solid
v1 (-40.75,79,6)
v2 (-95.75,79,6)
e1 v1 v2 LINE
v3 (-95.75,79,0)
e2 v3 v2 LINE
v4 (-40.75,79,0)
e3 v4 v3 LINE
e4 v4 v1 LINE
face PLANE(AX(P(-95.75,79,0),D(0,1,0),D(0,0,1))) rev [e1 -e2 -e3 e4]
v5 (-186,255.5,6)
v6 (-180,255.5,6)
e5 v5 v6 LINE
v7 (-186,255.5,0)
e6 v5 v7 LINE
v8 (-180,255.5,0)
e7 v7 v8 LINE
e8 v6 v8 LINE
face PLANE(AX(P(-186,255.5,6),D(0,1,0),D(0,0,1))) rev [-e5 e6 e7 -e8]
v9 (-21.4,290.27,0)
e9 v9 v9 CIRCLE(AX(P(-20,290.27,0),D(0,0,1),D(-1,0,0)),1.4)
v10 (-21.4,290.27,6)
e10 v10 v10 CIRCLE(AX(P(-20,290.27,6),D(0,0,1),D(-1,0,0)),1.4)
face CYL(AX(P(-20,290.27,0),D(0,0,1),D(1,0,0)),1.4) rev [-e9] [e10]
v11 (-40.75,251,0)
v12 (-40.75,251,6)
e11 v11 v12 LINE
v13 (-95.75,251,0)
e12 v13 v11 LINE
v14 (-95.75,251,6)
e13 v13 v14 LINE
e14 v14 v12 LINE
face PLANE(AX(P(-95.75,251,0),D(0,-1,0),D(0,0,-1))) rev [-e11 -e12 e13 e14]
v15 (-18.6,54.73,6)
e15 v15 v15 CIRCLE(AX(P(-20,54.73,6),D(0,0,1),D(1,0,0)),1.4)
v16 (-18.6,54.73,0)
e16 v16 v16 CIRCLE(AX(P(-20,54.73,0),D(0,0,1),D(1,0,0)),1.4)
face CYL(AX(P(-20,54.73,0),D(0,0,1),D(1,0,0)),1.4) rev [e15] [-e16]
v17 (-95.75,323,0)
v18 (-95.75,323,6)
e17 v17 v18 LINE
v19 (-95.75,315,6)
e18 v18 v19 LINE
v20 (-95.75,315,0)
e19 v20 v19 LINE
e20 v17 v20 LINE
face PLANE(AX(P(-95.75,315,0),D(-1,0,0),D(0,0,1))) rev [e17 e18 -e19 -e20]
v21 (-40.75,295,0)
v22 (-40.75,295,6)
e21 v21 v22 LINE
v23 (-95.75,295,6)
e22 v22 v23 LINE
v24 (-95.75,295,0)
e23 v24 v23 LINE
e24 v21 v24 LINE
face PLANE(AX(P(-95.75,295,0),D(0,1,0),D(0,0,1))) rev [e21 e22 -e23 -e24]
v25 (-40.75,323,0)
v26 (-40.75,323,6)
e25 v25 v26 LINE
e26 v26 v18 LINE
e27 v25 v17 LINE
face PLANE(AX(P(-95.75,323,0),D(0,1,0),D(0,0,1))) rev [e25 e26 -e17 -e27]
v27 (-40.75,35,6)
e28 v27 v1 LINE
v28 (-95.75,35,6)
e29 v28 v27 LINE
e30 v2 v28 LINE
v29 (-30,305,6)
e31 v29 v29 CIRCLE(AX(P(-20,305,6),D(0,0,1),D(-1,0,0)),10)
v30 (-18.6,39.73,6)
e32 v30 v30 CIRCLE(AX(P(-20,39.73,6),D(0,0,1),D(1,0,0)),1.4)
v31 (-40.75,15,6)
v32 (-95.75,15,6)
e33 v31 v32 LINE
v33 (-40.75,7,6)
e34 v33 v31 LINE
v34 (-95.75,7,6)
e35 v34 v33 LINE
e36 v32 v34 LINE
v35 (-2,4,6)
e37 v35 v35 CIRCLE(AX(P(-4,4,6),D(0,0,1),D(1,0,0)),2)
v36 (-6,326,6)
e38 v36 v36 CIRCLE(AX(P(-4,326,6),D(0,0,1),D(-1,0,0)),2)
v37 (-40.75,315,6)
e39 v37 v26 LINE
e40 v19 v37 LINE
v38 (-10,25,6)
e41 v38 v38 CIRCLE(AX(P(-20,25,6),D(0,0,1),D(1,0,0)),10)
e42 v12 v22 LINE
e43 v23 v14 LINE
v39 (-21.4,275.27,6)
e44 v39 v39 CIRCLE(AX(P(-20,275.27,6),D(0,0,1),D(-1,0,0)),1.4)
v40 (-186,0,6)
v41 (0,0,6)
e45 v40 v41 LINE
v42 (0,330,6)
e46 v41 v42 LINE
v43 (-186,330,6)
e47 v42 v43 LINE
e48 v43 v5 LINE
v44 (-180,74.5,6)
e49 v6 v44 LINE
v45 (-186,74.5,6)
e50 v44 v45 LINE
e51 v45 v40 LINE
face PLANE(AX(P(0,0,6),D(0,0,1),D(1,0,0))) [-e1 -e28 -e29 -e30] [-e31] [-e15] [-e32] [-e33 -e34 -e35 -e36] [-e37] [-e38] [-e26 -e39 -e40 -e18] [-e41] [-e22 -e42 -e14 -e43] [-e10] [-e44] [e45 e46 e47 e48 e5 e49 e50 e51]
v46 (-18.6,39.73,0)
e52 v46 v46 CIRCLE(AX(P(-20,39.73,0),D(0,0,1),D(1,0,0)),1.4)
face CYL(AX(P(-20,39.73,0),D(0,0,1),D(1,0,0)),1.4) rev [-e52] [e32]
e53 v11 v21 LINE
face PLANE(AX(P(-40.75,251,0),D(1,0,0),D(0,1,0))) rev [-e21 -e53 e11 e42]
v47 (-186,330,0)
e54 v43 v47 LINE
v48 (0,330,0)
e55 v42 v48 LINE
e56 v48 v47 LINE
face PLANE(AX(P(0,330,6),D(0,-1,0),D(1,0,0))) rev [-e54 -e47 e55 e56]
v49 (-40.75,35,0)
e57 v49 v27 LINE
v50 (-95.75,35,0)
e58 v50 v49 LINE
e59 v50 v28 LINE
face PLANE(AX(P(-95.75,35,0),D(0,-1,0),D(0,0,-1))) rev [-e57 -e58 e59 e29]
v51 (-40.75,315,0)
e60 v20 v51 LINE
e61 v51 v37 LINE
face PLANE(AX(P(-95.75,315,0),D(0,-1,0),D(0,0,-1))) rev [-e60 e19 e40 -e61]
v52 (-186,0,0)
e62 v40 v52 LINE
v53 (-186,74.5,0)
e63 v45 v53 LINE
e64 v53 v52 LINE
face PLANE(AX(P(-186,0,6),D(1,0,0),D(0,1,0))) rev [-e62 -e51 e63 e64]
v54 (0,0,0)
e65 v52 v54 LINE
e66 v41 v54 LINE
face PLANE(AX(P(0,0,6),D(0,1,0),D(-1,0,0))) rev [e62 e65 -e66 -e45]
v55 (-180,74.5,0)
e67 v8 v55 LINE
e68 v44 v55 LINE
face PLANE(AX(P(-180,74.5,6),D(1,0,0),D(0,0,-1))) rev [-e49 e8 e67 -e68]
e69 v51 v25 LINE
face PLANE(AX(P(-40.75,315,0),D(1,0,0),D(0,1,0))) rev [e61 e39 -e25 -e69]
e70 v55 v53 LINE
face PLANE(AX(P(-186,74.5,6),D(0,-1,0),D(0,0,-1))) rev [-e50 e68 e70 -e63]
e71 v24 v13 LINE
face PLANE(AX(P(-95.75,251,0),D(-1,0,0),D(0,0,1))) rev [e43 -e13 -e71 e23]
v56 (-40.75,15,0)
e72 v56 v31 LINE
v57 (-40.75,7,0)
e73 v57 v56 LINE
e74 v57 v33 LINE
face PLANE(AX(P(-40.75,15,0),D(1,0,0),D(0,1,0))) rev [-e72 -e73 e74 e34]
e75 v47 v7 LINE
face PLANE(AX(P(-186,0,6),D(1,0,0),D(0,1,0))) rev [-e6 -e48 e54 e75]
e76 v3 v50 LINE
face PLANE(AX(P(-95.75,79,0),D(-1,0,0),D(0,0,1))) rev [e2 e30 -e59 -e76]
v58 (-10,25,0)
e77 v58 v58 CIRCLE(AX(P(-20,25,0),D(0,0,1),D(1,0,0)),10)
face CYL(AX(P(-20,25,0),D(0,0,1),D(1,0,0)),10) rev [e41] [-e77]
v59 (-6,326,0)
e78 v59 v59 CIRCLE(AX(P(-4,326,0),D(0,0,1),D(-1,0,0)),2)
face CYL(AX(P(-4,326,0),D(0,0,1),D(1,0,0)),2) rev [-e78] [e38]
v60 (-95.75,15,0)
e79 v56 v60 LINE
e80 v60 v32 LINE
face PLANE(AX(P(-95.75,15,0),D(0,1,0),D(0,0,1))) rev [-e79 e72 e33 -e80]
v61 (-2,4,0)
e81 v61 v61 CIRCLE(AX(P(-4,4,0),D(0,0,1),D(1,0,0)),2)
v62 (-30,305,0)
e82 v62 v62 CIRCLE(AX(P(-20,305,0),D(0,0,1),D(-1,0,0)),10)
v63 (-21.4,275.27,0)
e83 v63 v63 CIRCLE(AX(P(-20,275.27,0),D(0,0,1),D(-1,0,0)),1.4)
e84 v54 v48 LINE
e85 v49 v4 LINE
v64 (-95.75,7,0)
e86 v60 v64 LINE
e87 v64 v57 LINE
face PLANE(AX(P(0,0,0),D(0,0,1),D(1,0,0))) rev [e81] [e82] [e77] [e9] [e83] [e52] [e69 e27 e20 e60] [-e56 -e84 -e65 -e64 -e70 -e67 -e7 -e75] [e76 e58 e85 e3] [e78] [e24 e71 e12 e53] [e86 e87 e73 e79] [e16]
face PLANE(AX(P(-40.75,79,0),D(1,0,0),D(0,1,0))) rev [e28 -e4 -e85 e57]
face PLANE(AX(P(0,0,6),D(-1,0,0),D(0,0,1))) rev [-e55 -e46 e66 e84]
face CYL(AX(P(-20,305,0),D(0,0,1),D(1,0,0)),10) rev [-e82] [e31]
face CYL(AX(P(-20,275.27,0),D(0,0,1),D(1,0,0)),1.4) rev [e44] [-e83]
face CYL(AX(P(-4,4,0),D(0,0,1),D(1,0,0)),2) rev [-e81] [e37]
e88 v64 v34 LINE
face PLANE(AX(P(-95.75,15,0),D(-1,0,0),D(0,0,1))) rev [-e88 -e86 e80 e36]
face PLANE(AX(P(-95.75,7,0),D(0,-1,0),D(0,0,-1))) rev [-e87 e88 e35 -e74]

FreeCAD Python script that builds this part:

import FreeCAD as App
import Part
import Sketcher

V = App.Vector

doc = App.newDocument("Part")
body = doc.addObject("PartDesign::Body", "Body")

# Sketch on XY plane
sketch1 = doc.addObject("Sketcher::SketchObject", "Sketch")
body.addObject(sketch1)
sketch1.AttachmentSupport = (doc.XY_Plane, [""])
sketch1.MapMode = "FlatFace"
sketch1.addGeometry(Part.LineSegment(V(-186, 330, 0), V(-186, 0, 0)), False)
sketch1.addGeometry(Part.LineSegment(V(-186, 0, 0), V(0, 0, 0)), False)
sketch1.addGeometry(Part.LineSegment(V(0, 0, 0), V(0, 330, 0)), False)
sketch1.addGeometry(Part.LineSegment(V(0, 330, 0), V(-186, 330, 0)), False)
sketch1.addConstraint(Sketcher.Constraint("Coincident", 0, 2, 1, 1))
sketch1.addConstraint(Sketcher.Constraint("Coincident", 1, 2, 2, 1))
sketch1.addConstraint(Sketcher.Constraint("Coincident", 2, 2, 3, 1))
sketch1.addConstraint(Sketcher.Constraint("Coincident", 3, 2, 0, 1))
sketch1.addConstraint(Sketcher.Constraint("Vertical", 0))
sketch1.addConstraint(Sketcher.Constraint("Horizontal", 1))
sketch1.addConstraint(Sketcher.Constraint("Vertical", 2))
sketch1.addConstraint(Sketcher.Constraint("Horizontal", 3))
sketch1.addConstraint(Sketcher.Constraint("Coincident", 1, 2, -1, 1))
sketch1.addConstraint(Sketcher.Constraint("DistanceX", 1, 1, 1, 2, 186.0))
sketch1.addConstraint(Sketcher.Constraint("DistanceY", 0, 2, 0, 1, 330.0))
pad1 = doc.addObject("PartDesign::Pad", "Pad")
body.addObject(pad1)
pad1.Profile = sketch1
pad1.Length = 6

# Sketch on XY plane
sketch2 = doc.addObject("Sketcher::SketchObject", "Sketch001")
body.addObject(sketch2)
sketch2.AttachmentSupport = (doc.XY_Plane, [""])
sketch2.MapMode = "FlatFace"
sketch2.AttachmentOffset = App.Placement(V(0, 0, 6), App.Rotation())
sketch2.addGeometry(Part.Circle(V(-4, 4, 0), V(0, 0, 1), 2), False)
sketch2.addGeometry(Part.Circle(V(-20, 25, 0), V(0, 0, 1), 10), False)
sketch2.addGeometry(Part.Circle(V(-20, 39.73, 0), V(0, 0, 1), 1.4), False)
sketch2.addGeometry(Part.Circle(V(-20, 54.73, 0), V(0, 0, 1), 1.4), False)
sketch2.addGeometry(Part.Circle(V(-20, 275.27, 0), V(0, 0, 1), 1.4), False)
sketch2.addGeometry(Part.Circle(V(-20, 290.27, 0), V(0, 0, 1), 1.4), False)
sketch2.addGeometry(Part.Circle(V(-4, 326, 0), V(0, 0, 1), 2), False)
sketch2.addGeometry(Part.Circle(V(-20, 305, 0), V(0, 0, 1), 10), False)
sketch2.addGeometry(Part.LineSegment(V(-95.75, 15, 0), V(-95.75, 7, 0)), False)
sketch2.addGeometry(Part.LineSegment(V(-95.75, 7, 0), V(-40.75, 7, 0)), False)
sketch2.addGeometry(Part.LineSegment(V(-40.75, 7, 0), V(-40.75, 15, 0)), False)
sketch2.addGeometry(Part.LineSegment(V(-40.75, 15, 0), V(-95.75, 15, 0)), False)
sketch2.addGeometry(Part.LineSegment(V(-95.75, 79, 0), V(-95.75, 35, 0)), False)
sketch2.addGeometry(Part.LineSegment(V(-95.75, 35, 0), V(-40.75, 35, 0)), False)
sketch2.addGeometry(Part.LineSegment(V(-40.75, 35, 0), V(-40.75, 79, 0)), False)
sketch2.addGeometry(Part.LineSegment(V(-40.75, 79, 0), V(-95.75, 79, 0)), False)
sketch2.addGeometry(Part.LineSegment(V(-95.75, 295, 0), V(-95.75, 251, 0)), False)
sketch2.addGeometry(Part.LineSegment(V(-95.75, 251, 0), V(-40.75, 251, 0)), False)
sketch2.addGeometry(Part.LineSegment(V(-40.75, 251, 0), V(-40.75, 295, 0)), False)
sketch2.addGeometry(Part.LineSegment(V(-40.75, 295, 0), V(-95.75, 295, 0)), False)
sketch2.addGeometry(Part.LineSegment(V(-95.75, 323, 0), V(-95.75, 315, 0)), False)
sketch2.addGeometry(Part.LineSegment(V(-95.75, 315, 0), V(-40.75, 315, 0)), False)
sketch2.addGeometry(Part.LineSegment(V(-40.75, 315, 0), V(-40.75, 323, 0)), False)
sketch2.addGeometry(Part.LineSegment(V(-40.75, 323, 0), V(-95.75, 323, 0)), False)
sketch2.addConstraint(Sketcher.Constraint("Coincident", 8, 2, 9, 1))
sketch2.addConstraint(Sketcher.Constraint("Coincident", 9, 2, 10, 1))
sketch2.addConstraint(Sketcher.Constraint("Coincident", 10, 2, 11, 1))
sketch2.addConstraint(Sketcher.Constraint("Coincident", 11, 2, 8, 1))
sketch2.addConstraint(Sketcher.Constraint("Coincident", 12, 2, 13, 1))
sketch2.addConstraint(Sketcher.Constraint("Coincident", 13, 2, 14, 1))
sketch2.addConstraint(Sketcher.Constraint("Coincident", 14, 2, 15, 1))
sketch2.addConstraint(Sketcher.Constraint("Coincident", 15, 2, 12, 1))
sketch2.addConstraint(Sketcher.Constraint("Coincident", 16, 2, 17, 1))
sketch2.addConstraint(Sketcher.Constraint("Coincident", 17, 2, 18, 1))
sketch2.addConstraint(Sketcher.Constraint("Coincident", 18, 2, 19, 1))
sketch2.addConstraint(Sketcher.Constraint("Coincident", 19, 2, 16, 1))
sketch2.addConstraint(Sketcher.Constraint("Coincident", 20, 2, 21, 1))
sketch2.addConstraint(Sketcher.Constraint("Coincident", 21, 2, 22, 1))
sketch2.addConstraint(Sketcher.Constraint("Coincident", 22, 2, 23, 1))
sketch2.addConstraint(Sketcher.Constraint("Coincident", 23, 2, 20, 1))
sketch2.addConstraint(Sketcher.Constraint("Vertical", 8))
sketch2.addConstraint(Sketcher.Constraint("Horizontal", 9))
sketch2.addConstraint(Sketcher.Constraint("Vertical", 10))
sketch2.addConstraint(Sketcher.Constraint("Horizontal", 11))
sketch2.addConstraint(Sketcher.Constraint("Vertical", 12))
sketch2.addConstraint(Sketcher.Constraint("Horizontal", 13))
sketch2.addConstraint(Sketcher.Constraint("Vertical", 14))
sketch2.addConstraint(Sketcher.Constraint("Horizontal", 15))
sketch2.addConstraint(Sketcher.Constraint("Vertical", 16))
sketch2.addConstraint(Sketcher.Constraint("Horizontal", 17))
sketch2.addConstraint(Sketcher.Constraint("Vertical", 18))
sketch2.addConstraint(Sketcher.Constraint("Horizontal", 19))
sketch2.addConstraint(Sketcher.Constraint("Vertical", 20))
sketch2.addConstraint(Sketcher.Constraint("Horizontal", 21))
sketch2.addConstraint(Sketcher.Constraint("Vertical", 22))
sketch2.addConstraint(Sketcher.Constraint("Horizontal", 23))
sketch2.addConstraint(Sketcher.Constraint("Equal", 2, 3))
sketch2.addConstraint(Sketcher.Constraint("Equal", 3, 4))
sketch2.addConstraint(Sketcher.Constraint("Equal", 4, 5))
sketch2.addConstraint(Sketcher.Constraint("Equal", 0, 6))
sketch2.addConstraint(Sketcher.Constraint("Equal", 1, 7))
sketch2.addConstraint(Sketcher.Constraint("Vertical", 1, 3, 2, 3))
sketch2.addConstraint(Sketcher.Constraint("Vertical", 2, 3, 3, 3))
sketch2.addConstraint(Sketcher.Constraint("Vertical", 3, 3, 4, 3))
sketch2.addConstraint(Sketcher.Constraint("Vertical", 4, 3, 5, 3))
sketch2.addConstraint(Sketcher.Constraint("Vertical", 0, 3, 6, 3))
sketch2.addConstraint(Sketcher.Constraint("Vertical", 5, 3, 7, 3))
sketch2.addConstraint(Sketcher.Constraint("Vertical", 11, 2, 12, 2))
sketch2.addConstraint(Sketcher.Constraint("Vertical", 10, 2, 13, 2))
sketch2.addConstraint(Sketcher.Constraint("Vertical", 15, 2, 16, 2))
sketch2.addConstraint(Sketcher.Constraint("Vertical", 14, 2, 17, 2))
sketch2.addConstraint(Sketcher.Constraint("Vertical", 19, 2, 20, 2))
sketch2.addConstraint(Sketcher.Constraint("Vertical", 18, 2, 21, 2))
sketch2.addConstraint(Sketcher.Constraint("Equal", 14, 16))
sketch2.addConstraint(Sketcher.Constraint("Equal", 10, 20))
sketch2.addConstraint(Sketcher.Constraint("Diameter", 0, 4.0))
sketch2.addConstraint(Sketcher.Constraint("Diameter", 1, 20.0))
sketch2.addConstraint(Sketcher.Constraint("Diameter", 2, 2.8))
sketch2.addConstraint(Sketcher.Constraint("DistanceX", 9, 1, 9, 2, 55.0))
sketch2.addConstraint(Sketcher.Constraint("DistanceY", 8, 2, 8, 1, 8.0))
sketch2.addConstraint(Sketcher.Constraint("DistanceY", 12, 2, 12, 1, 44.0))
sketch2.addConstraint(Sketcher.Constraint("DistanceX", 0, 3, -1, 1, 4.0))
sketch2.addConstraint(Sketcher.Constraint("DistanceY", -1, 1, 0, 3, 4.0))
sketch2.addConstraint(Sketcher.Constraint("DistanceX", 1, 3, -1, 1, 20.0))
sketch2.addConstraint(Sketcher.Constraint("DistanceY", -1, 1, 1, 3, 25.0))
sketch2.addConstraint(Sketcher.Constraint("DistanceY", -1, 1, 6, 3, 326.0))
sketch2.addConstraint(Sketcher.Constraint("DistanceY", -1, 1, 7, 3, 305.0))
sketch2.addConstraint(Sketcher.Constraint("DistanceY", -1, 1, 8, 2, 7.0))
sketch2.addConstraint(Sketcher.Constraint("DistanceY", -1, 1, 12, 2, 35.0))
sketch2.addConstraint(Sketcher.Constraint("DistanceY", -1, 1, 16, 2, 251.0))
sketch2.addConstraint(Sketcher.Constraint("DistanceY", -1, 1, 20, 2, 315.0))
sketch2.addConstraint(Sketcher.Constraint("DistanceY", 2, 3, 3, 3, 15.0))
sketch2.addConstraint(Sketcher.Constraint("DistanceY", 4, 3, 5, 3, 15.0))
sketch2.addConstraint(Sketcher.Constraint("DistanceY", -1, 1, 2, 3, 39.73))
sketch2.addConstraint(Sketcher.Constraint("DistanceY", -1, 1, 4, 3, 275.27))
sketch2.addConstraint(Sketcher.Constraint("DistanceX", 8, 2, -1, 1, 95.75))
pocket1 = doc.addObject("PartDesign::Pocket", "Pocket")
body.addObject(pocket1)
pocket1.Profile = sketch2
pocket1.Length = 6

# Sketch on XY plane
sketch3 = doc.addObject("Sketcher::SketchObject", "Sketch002")
body.addObject(sketch3)
sketch3.AttachmentSupport = (doc.XY_Plane, [""])
sketch3.MapMode = "FlatFace"
sketch3.addGeometry(Part.LineSegment(V(-180, 255.5, 0), V(-180, 74.5, 0)), False)
sketch3.addGeometry(Part.LineSegment(V(-180, 74.5, 0), V(-186, 74.5, 0)), False)
sketch3.addGeometry(Part.LineSegment(V(-186, 74.5, 0), V(-186, 255.5, 0)), False)
sketch3.addGeometry(Part.LineSegment(V(-186, 255.5, 0), V(-180, 255.5, 0)), False)
sketch3.addConstraint(Sketcher.Constraint("Coincident", 0, 2, 1, 1))
sketch3.addConstraint(Sketcher.Constraint("Coincident", 1, 2, 2, 1))
sketch3.addConstraint(Sketcher.Constraint("Coincident", 2, 2, 3, 1))
sketch3.addConstraint(Sketcher.Constraint("Coincident", 3, 2, 0, 1))
sketch3.addConstraint(Sketcher.Constraint("Vertical", 0))
sketch3.addConstraint(Sketcher.Constraint("Horizontal", 1))
sketch3.addConstraint(Sketcher.Constraint("Vertical", 2))
sketch3.addConstraint(Sketcher.Constraint("Horizontal", 3))
sketch3.addConstraint(Sketcher.Constraint("DistanceX", 1, 2, 1, 1, 6.0))
sketch3.addConstraint(Sketcher.Constraint("DistanceY", 0, 2, 0, 1, 181.0))
sketch3.addConstraint(Sketcher.Constraint("DistanceX", 0, 2, -1, 1, 180.0))
sketch3.addConstraint(Sketcher.Constraint("DistanceY", -1, 1, 0, 2, 74.5))
pocket2 = doc.addObject("PartDesign::Pocket", "Pocket001")
body.addObject(pocket2)
pocket2.Profile = sketch3
pocket2.Type = "ThroughAll"
pocket2.Reversed = True

doc.recompute()
